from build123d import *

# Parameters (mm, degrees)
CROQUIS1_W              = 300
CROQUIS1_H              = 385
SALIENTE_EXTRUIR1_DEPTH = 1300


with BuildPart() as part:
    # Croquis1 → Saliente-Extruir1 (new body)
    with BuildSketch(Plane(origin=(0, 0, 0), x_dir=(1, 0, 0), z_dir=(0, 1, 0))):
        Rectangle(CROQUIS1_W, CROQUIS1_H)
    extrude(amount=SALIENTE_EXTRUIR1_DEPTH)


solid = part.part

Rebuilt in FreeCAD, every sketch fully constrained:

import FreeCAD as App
import Part
import Sketcher

V = App.Vector


def add_polygon(sketch, points):
    """Adds a closed chain of lines whose ends are joined by coincident constraints."""
    first, n = sketch.GeometryCount, len(points)
    for a, b in zip(points, points[1:] + points[:1]):
        sketch.addGeometry(Part.LineSegment(App.Vector(*a, 0), App.Vector(*b, 0)), False)
    for i in range(n):
        sketch.addConstraint(Sketcher.Constraint("Coincident", first + i, 2, first + (i + 1) % n, 1))

doc = App.newDocument("Part")
body = doc.addObject("PartDesign::Body", "Body")

# Sketch on XZ plane
sketch1 = doc.addObject("Sketcher::SketchObject", "Sketch")
body.addObject(sketch1)
sketch1.AttachmentSupport = (doc.XZ_Plane, [""])
sketch1.MapMode = "FlatFace"
add_polygon(sketch1, [(-150, -192), (-150, 192), (150, 192), (150, -192)])  # lines 0-3
sketch1.addConstraint([
    Sketcher.Constraint("Vertical", 0),
    Sketcher.Constraint("Horizontal", 1),
    Sketcher.Constraint("Vertical", 2),
    Sketcher.Constraint("Horizontal", 3),
    Sketcher.Constraint("Symmetric", 0, 2, 2, 2, -1, 1),
    Sketcher.Constraint("DistanceX", 1, 1, 1, 2, 300.0),
    Sketcher.Constraint("DistanceY", 0, 1, 0, 2, 385.0),
])
pad1 = doc.addObject("PartDesign::Pad", "Pad")
body.addObject(pad1)
pad1.Profile = sketch1
pad1.Length = 1300
pad1.Reversed = True

doc.recompute()
